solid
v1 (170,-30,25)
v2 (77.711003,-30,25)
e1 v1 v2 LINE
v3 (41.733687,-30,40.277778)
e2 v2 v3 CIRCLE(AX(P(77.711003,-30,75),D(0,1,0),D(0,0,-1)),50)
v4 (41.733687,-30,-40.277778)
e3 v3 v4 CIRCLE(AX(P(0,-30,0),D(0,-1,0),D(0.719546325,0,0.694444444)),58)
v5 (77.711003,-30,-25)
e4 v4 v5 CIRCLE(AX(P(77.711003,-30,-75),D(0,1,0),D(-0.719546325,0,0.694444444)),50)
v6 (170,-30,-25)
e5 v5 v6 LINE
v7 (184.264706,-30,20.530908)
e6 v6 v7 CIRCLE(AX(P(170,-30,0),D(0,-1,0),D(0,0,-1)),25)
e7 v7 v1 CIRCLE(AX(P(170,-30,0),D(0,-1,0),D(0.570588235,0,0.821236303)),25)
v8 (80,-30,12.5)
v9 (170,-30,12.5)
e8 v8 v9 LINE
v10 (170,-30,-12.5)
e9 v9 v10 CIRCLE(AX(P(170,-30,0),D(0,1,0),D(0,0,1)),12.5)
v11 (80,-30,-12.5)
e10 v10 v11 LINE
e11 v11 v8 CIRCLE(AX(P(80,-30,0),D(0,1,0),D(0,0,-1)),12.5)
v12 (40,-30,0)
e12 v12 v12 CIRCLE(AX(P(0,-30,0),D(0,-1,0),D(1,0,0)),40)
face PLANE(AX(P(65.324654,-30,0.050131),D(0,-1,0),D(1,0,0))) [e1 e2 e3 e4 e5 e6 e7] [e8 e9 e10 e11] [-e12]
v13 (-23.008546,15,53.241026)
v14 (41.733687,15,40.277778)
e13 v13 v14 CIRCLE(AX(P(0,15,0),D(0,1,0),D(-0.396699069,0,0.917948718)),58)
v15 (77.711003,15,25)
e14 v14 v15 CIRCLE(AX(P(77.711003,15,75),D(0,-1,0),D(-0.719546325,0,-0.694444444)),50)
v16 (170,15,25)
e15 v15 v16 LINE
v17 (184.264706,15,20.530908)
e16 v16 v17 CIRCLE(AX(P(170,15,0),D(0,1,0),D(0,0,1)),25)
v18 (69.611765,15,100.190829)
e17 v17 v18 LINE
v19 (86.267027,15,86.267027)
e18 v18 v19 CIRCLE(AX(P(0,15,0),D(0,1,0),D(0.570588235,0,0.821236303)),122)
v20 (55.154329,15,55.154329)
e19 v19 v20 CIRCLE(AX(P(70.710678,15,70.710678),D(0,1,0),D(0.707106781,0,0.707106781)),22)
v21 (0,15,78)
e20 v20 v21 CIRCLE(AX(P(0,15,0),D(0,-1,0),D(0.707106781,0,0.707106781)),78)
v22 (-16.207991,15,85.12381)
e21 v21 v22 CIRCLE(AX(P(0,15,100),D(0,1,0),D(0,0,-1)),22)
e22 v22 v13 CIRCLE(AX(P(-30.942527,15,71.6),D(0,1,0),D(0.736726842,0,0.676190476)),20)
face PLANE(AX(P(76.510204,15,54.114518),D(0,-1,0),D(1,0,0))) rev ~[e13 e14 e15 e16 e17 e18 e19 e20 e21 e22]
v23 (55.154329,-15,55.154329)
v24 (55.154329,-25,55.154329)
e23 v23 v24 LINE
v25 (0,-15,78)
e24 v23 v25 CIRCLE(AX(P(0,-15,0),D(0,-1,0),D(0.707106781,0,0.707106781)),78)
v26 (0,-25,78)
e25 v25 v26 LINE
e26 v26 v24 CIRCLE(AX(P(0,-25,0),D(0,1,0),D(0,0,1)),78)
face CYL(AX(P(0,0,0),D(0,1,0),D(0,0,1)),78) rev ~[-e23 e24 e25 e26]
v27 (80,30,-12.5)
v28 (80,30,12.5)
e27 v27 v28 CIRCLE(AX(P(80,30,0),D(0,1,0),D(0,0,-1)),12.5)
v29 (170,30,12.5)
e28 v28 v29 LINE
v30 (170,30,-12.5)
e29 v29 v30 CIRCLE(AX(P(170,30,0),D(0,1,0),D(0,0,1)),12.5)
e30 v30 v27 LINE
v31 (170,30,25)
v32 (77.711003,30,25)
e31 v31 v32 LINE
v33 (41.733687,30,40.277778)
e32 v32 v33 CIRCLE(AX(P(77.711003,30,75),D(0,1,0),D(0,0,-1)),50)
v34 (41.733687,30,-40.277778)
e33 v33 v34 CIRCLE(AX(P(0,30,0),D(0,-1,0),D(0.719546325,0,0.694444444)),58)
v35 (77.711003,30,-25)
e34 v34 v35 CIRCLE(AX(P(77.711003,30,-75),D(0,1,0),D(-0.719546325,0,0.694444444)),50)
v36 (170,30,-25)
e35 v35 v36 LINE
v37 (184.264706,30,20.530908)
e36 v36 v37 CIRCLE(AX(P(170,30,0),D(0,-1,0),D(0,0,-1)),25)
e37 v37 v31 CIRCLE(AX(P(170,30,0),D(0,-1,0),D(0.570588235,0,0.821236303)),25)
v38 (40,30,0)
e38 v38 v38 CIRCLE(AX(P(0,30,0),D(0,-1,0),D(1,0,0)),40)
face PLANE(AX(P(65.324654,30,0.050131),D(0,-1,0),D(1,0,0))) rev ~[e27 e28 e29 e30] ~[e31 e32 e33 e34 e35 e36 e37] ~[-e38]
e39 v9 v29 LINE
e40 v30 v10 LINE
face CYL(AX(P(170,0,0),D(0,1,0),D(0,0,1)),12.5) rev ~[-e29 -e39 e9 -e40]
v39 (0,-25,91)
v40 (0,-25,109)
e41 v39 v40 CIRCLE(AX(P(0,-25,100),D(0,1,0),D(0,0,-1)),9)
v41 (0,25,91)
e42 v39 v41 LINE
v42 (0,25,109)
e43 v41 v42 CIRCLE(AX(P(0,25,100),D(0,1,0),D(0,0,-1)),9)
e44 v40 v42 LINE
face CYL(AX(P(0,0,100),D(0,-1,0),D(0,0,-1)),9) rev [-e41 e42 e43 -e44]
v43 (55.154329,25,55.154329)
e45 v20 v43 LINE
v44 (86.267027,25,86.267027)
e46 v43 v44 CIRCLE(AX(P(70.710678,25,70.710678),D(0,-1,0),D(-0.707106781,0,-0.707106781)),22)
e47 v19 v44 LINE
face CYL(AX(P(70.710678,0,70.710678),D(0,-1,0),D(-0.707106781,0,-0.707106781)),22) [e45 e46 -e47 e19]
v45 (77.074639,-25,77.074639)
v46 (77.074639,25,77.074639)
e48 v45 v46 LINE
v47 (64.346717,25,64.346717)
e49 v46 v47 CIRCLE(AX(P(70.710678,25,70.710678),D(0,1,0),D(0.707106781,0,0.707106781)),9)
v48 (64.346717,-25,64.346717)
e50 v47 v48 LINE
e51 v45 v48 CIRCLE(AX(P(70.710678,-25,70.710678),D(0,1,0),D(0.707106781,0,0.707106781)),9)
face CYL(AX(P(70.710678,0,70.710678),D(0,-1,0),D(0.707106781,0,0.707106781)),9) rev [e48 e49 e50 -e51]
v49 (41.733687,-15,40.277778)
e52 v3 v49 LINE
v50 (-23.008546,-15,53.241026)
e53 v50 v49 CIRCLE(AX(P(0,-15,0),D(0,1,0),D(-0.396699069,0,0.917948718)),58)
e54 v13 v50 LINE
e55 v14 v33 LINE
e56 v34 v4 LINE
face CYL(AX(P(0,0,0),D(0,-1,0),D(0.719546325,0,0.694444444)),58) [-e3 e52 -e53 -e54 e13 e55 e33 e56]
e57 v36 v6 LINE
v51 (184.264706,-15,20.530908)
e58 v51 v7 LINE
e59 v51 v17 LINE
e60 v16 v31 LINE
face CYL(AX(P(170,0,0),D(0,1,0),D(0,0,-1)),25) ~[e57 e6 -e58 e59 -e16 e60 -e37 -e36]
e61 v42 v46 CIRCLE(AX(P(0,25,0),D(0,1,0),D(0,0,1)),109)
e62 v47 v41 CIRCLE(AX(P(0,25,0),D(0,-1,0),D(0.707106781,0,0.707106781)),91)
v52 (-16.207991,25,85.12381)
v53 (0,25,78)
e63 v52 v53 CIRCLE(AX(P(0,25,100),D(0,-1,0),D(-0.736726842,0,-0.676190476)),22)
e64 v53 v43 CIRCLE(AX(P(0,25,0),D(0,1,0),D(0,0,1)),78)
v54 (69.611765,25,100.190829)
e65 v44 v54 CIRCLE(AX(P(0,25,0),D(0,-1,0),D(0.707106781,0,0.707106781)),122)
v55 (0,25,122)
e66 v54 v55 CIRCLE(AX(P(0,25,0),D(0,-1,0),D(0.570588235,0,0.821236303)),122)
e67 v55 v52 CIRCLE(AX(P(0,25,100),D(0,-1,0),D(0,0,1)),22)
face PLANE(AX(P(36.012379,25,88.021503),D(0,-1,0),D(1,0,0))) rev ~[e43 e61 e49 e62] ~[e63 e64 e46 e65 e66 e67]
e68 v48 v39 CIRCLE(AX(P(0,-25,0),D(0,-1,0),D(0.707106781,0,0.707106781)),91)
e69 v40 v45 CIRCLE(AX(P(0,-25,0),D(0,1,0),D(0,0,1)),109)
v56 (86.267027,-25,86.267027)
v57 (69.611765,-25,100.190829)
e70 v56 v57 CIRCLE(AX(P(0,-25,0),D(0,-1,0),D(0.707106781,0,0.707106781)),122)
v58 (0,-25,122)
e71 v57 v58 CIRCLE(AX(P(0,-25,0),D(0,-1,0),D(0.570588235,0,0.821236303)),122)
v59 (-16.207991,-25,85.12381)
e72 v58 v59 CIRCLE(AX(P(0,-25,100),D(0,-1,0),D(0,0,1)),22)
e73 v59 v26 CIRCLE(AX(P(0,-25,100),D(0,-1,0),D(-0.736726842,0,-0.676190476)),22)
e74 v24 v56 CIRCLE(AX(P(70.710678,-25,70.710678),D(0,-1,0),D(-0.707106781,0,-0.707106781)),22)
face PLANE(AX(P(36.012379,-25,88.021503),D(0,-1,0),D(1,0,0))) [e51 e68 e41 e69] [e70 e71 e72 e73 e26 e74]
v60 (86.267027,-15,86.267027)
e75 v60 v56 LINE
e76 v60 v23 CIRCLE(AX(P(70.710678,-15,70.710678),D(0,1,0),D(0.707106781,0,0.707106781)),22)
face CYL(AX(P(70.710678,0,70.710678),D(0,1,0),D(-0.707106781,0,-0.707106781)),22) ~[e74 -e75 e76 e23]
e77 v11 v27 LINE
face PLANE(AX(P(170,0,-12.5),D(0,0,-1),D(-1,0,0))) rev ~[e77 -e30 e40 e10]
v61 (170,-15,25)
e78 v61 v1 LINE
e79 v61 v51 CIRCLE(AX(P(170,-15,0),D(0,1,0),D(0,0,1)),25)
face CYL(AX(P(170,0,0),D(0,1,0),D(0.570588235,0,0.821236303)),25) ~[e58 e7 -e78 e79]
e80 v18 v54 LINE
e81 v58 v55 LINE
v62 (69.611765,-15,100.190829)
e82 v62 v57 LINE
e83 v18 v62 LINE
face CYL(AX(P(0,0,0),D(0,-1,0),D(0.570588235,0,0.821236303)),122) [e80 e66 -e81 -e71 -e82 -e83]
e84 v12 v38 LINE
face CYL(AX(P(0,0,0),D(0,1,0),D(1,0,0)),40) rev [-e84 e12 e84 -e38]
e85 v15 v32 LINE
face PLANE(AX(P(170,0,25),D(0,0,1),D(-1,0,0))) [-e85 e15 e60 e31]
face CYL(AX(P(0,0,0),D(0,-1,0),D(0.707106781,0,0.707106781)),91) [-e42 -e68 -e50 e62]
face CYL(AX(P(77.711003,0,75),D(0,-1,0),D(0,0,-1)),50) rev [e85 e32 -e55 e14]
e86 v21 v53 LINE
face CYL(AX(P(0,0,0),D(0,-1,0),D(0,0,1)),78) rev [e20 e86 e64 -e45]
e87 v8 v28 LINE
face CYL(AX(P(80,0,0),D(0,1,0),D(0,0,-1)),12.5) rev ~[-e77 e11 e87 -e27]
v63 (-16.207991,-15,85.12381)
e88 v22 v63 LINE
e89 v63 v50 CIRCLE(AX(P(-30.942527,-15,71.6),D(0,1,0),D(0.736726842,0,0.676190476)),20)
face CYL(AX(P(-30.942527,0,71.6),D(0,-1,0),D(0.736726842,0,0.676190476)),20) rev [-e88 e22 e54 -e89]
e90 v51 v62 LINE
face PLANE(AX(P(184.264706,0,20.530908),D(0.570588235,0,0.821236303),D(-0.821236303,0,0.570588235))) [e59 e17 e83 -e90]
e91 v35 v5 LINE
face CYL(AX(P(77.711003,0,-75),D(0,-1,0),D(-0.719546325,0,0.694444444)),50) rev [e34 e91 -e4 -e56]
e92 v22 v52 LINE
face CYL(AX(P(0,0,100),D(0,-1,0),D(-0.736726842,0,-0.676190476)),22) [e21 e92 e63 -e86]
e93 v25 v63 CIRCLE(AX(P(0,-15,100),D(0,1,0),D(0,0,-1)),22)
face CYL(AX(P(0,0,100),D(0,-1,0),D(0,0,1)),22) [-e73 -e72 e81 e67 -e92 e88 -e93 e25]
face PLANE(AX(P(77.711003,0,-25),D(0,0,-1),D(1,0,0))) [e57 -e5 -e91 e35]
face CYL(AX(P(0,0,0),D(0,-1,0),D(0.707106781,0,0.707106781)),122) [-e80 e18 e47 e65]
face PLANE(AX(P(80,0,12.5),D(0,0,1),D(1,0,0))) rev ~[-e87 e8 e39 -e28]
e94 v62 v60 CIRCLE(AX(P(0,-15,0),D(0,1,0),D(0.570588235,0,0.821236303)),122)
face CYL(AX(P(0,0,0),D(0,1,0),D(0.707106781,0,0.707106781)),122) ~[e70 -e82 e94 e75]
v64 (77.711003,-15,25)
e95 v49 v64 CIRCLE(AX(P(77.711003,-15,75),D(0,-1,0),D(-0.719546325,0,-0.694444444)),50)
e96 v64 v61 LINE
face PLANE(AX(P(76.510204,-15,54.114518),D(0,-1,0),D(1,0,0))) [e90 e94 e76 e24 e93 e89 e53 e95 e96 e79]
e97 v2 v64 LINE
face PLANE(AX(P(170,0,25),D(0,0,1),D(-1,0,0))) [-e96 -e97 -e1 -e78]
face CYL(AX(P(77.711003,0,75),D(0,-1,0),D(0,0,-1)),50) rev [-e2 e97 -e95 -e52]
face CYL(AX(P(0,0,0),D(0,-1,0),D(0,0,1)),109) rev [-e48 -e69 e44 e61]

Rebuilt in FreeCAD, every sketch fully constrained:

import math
import FreeCAD as App
import Part
import Sketcher

doc = App.newDocument("Part")
body = doc.addObject("PartDesign::Body", "Body")

# Sketch on XZ plane
sketch1 = body.newObject("Sketcher::SketchObject", "Sketch")
sketch1.AttachmentSupport = (doc.getObject("XZ_Plane"), [""])
sketch1.MapMode = "FlatFace"
sketch1.addGeometry([
    Part.ArcOfCircle(Part.Circle(App.Vector(0, 0, 0), App.Vector(0, 0, 1), 78), math.radians(45), math.radians(90)),  # 0
    Part.ArcOfCircle(Part.Circle(App.Vector(0, 100, 0), App.Vector(0, 0, 1), 22), math.radians(-137.453334), math.radians(-90)),  # 1
    Part.ArcOfCircle(Part.Circle(App.Vector(-30.942527, 71.6, 0), App.Vector(0, 0, 1), 20), math.radians(-66.628017), math.radians(42.546666)),  # 2
    Part.ArcOfCircle(Part.Circle(App.Vector(0, 0, 0), App.Vector(0, 0, 1), 58), math.radians(43.982963), math.radians(113.371983)),  # 3
    Part.ArcOfCircle(Part.Circle(App.Vector(77.711003, 75, 0), App.Vector(0, 0, 1), 50), math.radians(-136.017037), math.radians(-90)),  # 4
    Part.LineSegment(App.Vector(77.711003, 25, 0), App.Vector(170, 25, 0)),  # 5
    Part.ArcOfCircle(Part.Circle(App.Vector(170, 0, 0), App.Vector(0, 0, 1), 25), math.radians(55.208745), math.radians(90)),  # 6
    Part.LineSegment(App.Vector(184.264706, 20.530908, 0), App.Vector(69.611765, 100.190829, 0)),  # 7
    Part.ArcOfCircle(Part.Circle(App.Vector(0, 0, 0), App.Vector(0, 0, 1), 122), math.radians(45), math.radians(55.208745)),  # 8
    Part.ArcOfCircle(Part.Circle(App.Vector(70.710678, 70.710678, 0), App.Vector(0, 0, 1), 22), math.radians(-135), math.radians(45)),  # 9
], False)
sketch1.addConstraint([
    Sketcher.Constraint("Tangent", 0, 2, 1, 2),
    Sketcher.Constraint("Tangent", 1, 1, 2, 2),
    Sketcher.Constraint("Tangent", 2, 1, 3, 2),
    Sketcher.Constraint("Tangent", 3, 1, 4, 1),
    Sketcher.Constraint("Tangent", 4, 2, 5, 1),
    Sketcher.Constraint("Tangent", 5, 2, 6, 2),
    Sketcher.Constraint("Tangent", 6, 1, 7, 1),
    Sketcher.Constraint("Tangent", 7, 2, 8, 2),
    Sketcher.Constraint("Tangent", 8, 1, 9, 2),
    Sketcher.Constraint("Tangent", 9, 1, 0, 1),
    Sketcher.Constraint("Horizontal", 5),
    Sketcher.Constraint("Coincident", 0, 3, -1, 1),
    Sketcher.Constraint("Coincident", 3, 3, -1, 1),
    Sketcher.Constraint("Coincident", 8, 3, -1, 1),
    Sketcher.Constraint("Equal", 1, 9),
    Sketcher.Constraint("PointOnObject", 1, 3, -2),
    Sketcher.Constraint("PointOnObject", 6, 3, -1),
    Sketcher.Constraint("Radius", 0, 78.0),
    Sketcher.Constraint("Radius", 1, 22.0),
    Sketcher.Constraint("Radius", 2, 20.0),
    Sketcher.Constraint("Radius", 3, 58.0),
    Sketcher.Constraint("Radius", 4, 50.0),
    Sketcher.Constraint("Radius", 6, 25.0),
    Sketcher.Constraint("DistanceX", -1, 1, 6, 3, 170.0),
    Sketcher.Constraint("DistanceY", 3, 1, 9, 3, 30.4329),
])
pad1 = body.newObject("PartDesign::Pad", "Pad")
pad1.Profile = sketch1
pad1.Length = 30
pad1.Midplane = True

# Sketch on XZ plane
sketch2 = body.newObject("Sketcher::SketchObject", "Sketch001")
sketch2.AttachmentSupport = (doc.getObject("XZ_Plane"), [""])
sketch2.MapMode = "FlatFace"
sketch2.addGeometry([
    Part.ArcOfCircle(Part.Circle(App.Vector(0, 0, 0), App.Vector(0, 0, 1), 58), math.radians(43.982963), math.radians(316.017037)),  # 0
    Part.ArcOfCircle(Part.Circle(App.Vector(77.711003, -75, 0), App.Vector(0, 0, 1), 50), math.radians(90), math.radians(136.017037)),  # 1
    Part.LineSegment(App.Vector(77.711003, -25, 0), App.Vector(170, -25, 0)),  # 2
    Part.ArcOfCircle(Part.Circle(App.Vector(170, 0, 0), App.Vector(0, 0, 1), 25), math.radians(-90), math.radians(55.208745)),  # 3
    Part.ArcOfCircle(Part.Circle(App.Vector(170, 0, 0), App.Vector(0, 0, 1), 25), math.radians(55.208745), math.radians(90)),  # 4
    Part.LineSegment(App.Vector(170, 25, 0), App.Vector(77.711003, 25, 0)),  # 5
    Part.ArcOfCircle(Part.Circle(App.Vector(77.711003, 75, 0), App.Vector(0, 0, 1), 50), math.radians(-136.017037), math.radians(-90)),  # 6
    Part.Circle(App.Vector(0, 0, 0), App.Vector(0, 0, 1), 40),  # 7
    Part.ArcOfCircle(Part.Circle(App.Vector(170, 0, 0), App.Vector(0, 0, 1), 12.5), math.radians(-90), math.radians(90)),  # 8
    Part.LineSegment(App.Vector(170, -12.5, 0), App.Vector(80, -12.5, 0)),  # 9
    Part.ArcOfCircle(Part.Circle(App.Vector(80, 0, 0), App.Vector(0, 0, 1), 12.5), math.radians(90), math.radians(270)),  # 10
    Part.LineSegment(App.Vector(80, 12.5, 0), App.Vector(170, 12.5, 0)),  # 11
], False)
sketch2.addConstraint([
    Sketcher.Constraint("Tangent", 0, 2, 1, 2),
    Sketcher.Constraint("Tangent", 1, 1, 2, 1),
    Sketcher.Constraint("Tangent", 2, 2, 3, 1),
    Sketcher.Constraint("Tangent", 3, 2, 4, 1),
    Sketcher.Constraint("Tangent", 4, 2, 5, 1),
    Sketcher.Constraint("Tangent", 5, 2, 6, 2),
    Sketcher.Constraint("Tangent", 6, 1, 0, 1),
    Sketcher.Constraint("Tangent", 8, 1, 9, 1),
    Sketcher.Constraint("Tangent", 9, 2, 10, 2),
    Sketcher.Constraint("Tangent", 10, 1, 11, 1),
    Sketcher.Constraint("Tangent", 11, 2, 8, 2),
    Sketcher.Constraint("Horizontal", 2),
    Sketcher.Constraint("Horizontal", 5),
    Sketcher.Constraint("Horizontal", 9),
    Sketcher.Constraint("Horizontal", 11),
    Sketcher.Constraint("Coincident", 0, 3, -1, 1),
    Sketcher.Constraint("Coincident", 7, 3, -1, 1),
    Sketcher.Constraint("Coincident", 8, 3, 3, 3),
    Sketcher.Constraint("Equal", 3, 4),
    Sketcher.Constraint("Equal", 1, 6),
    Sketcher.Constraint("PointOnObject", 3, 3, -1),
    Sketcher.Constraint("Diameter", 7, 80.0),
    Sketcher.Constraint("Radius", 0, 58.0),
    Sketcher.Constraint("Radius", 1, 50.0),
    Sketcher.Constraint("Radius", 3, 25.0),
    Sketcher.Constraint("Radius", 8, 12.5),
    Sketcher.Constraint("DistanceX", 9, 2, 9, 1, 90.0),
    Sketcher.Constraint("DistanceX", -1, 1, 3, 3, 170.0),
    Sketcher.Constraint("DistanceX", -1, 1, 3, 2, 184.264706),
])
pad2 = body.newObject("PartDesign::Pad", "Pad001")
pad2.Profile = sketch2
pad2.Length = 60
pad2.Midplane = True

# Sketch on XZ plane
sketch3 = body.newObject("Sketcher::SketchObject", "Sketch002")
sketch3.AttachmentSupport = (doc.getObject("XZ_Plane"), [""])
sketch3.MapMode = "FlatFace"
sketch3.addGeometry([
    Part.ArcOfCircle(Part.Circle(App.Vector(0, 100, 0), App.Vector(0, 0, 1), 22), math.radians(-137.453334), math.radians(-90)),  # 0
    Part.ArcOfCircle(Part.Circle(App.Vector(0, 0, 0), App.Vector(0, 0, 1), 78), math.radians(45), math.radians(90)),  # 1
    Part.ArcOfCircle(Part.Circle(App.Vector(70.710678, 70.710678, 0), App.Vector(0, 0, 1), 22), math.radians(-135), math.radians(45)),  # 2
    Part.ArcOfCircle(Part.Circle(App.Vector(0, 0, 0), App.Vector(0, 0, 1), 122), math.radians(45), math.radians(55.208745)),  # 3
    Part.ArcOfCircle(Part.Circle(App.Vector(0, 0, 0), App.Vector(0, 0, 1), 122), math.radians(55.208745), math.radians(90)),  # 4
    Part.ArcOfCircle(Part.Circle(App.Vector(0, 100, 0), App.Vector(0, 0, 1), 22), math.radians(90), math.radians(222.546666)),  # 5
    Part.ArcOfCircle(Part.Circle(App.Vector(70.710678, 70.710678, 0), App.Vector(0, 0, 1), 9), math.radians(-135), math.radians(45)),  # 6
    Part.ArcOfCircle(Part.Circle(App.Vector(0, 0, 0), App.Vector(0, 0, 1), 91), math.radians(45), math.radians(90)),  # 7
    Part.ArcOfCircle(Part.Circle(App.Vector(0, 100, 0), App.Vector(0, 0, 1), 9), math.radians(90), math.radians(270)),  # 8
    Part.ArcOfCircle(Part.Circle(App.Vector(0, 0, 0), App.Vector(0, 0, 1), 109), math.radians(45), math.radians(90)),  # 9
], False)
sketch3.addConstraint([
    Sketcher.Constraint("Tangent", 0, 2, 1, 2),
    Sketcher.Constraint("Tangent", 1, 1, 2, 1),
    Sketcher.Constraint("Tangent", 2, 2, 3, 1),
    Sketcher.Constraint("Tangent", 3, 2, 4, 1),
    Sketcher.Constraint("Tangent", 4, 2, 5, 1),
    Sketcher.Constraint("Tangent", 5, 2, 0, 1),
    Sketcher.Constraint("Tangent", 6, 1, 7, 1),
    Sketcher.Constraint("Tangent", 7, 2, 8, 2),
    Sketcher.Constraint("Tangent", 8, 1, 9, 2),
    Sketcher.Constraint("Tangent", 9, 1, 6, 2),
    Sketcher.Constraint("Coincident", 1, 3, -1, 1),
    Sketcher.Constraint("Coincident", 3, 3, -1, 1),
    Sketcher.Constraint("Coincident", 7, 3, -1, 1),
    Sketcher.Constraint("Coincident", 9, 3, -1, 1),
    Sketcher.Constraint("Coincident", 6, 3, 2, 3),
    Sketcher.Constraint("Coincident", 8, 3, 0, 3),
    Sketcher.Constraint("Equal", 3, 4),
    Sketcher.Constraint("PointOnObject", 0, 3, -2),
    Sketcher.Constraint("Radius", 0, 22.0),
    Sketcher.Constraint("Radius", 1, 78.0),
    Sketcher.Constraint("Radius", 6, 9.0),
    Sketcher.Constraint("DistanceX", 1, 1, 2, 2, 31.112698),
    Sketcher.Constraint("DistanceY", 2, 2, 3, 2, 13.923802),
    Sketcher.Constraint("DistanceX", 5, 2, -1, 1, 16.207991),
])
pad3 = body.newObject("PartDesign::Pad", "Pad002")
pad3.Profile = sketch3
pad3.Length = 50
pad3.Midplane = True

# Sketch on XZ plane
sketch4 = body.newObject("Sketcher::SketchObject", "Sketch003")
sketch4.AttachmentSupport = (doc.getObject("XZ_Plane"), [""])
sketch4.MapMode = "FlatFace"
sketch4.addGeometry([
    Part.ArcOfCircle(Part.Circle(App.Vector(0, 100, 0), App.Vector(0, 0, 1), 22), math.radians(-137.453334), math.radians(-90)),  # 0
    Part.ArcOfCircle(Part.Circle(App.Vector(0, 0, 0), App.Vector(0, 0, 1), 78), math.radians(45), math.radians(90)),  # 1
    Part.ArcOfCircle(Part.Circle(App.Vector(70.710678, 70.710678, 0), App.Vector(0, 0, 1), 22), math.radians(-135), math.radians(45)),  # 2
    Part.ArcOfCircle(Part.Circle(App.Vector(0, 0, 0), App.Vector(0, 0, 1), 122), math.radians(45), math.radians(55.208745)),  # 3
    Part.ArcOfCircle(Part.Circle(App.Vector(0, 0, 0), App.Vector(0, 0, 1), 122), math.radians(55.208745), math.radians(90)),  # 4
    Part.ArcOfCircle(Part.Circle(App.Vector(0, 100, 0), App.Vector(0, 0, 1), 22), math.radians(90), math.radians(222.546666)),  # 5
    Part.ArcOfCircle(Part.Circle(App.Vector(70.710678, 70.710678, 0), App.Vector(0, 0, 1), 9), math.radians(-135), math.radians(45)),  # 6
    Part.ArcOfCircle(Part.Circle(App.Vector(0, 0, 0), App.Vector(0, 0, 1), 91), math.radians(45), math.radians(90)),  # 7
    Part.ArcOfCircle(Part.Circle(App.Vector(0, 100, 0), App.Vector(0, 0, 1), 9), math.radians(90), math.radians(270)),  # 8
    Part.ArcOfCircle(Part.Circle(App.Vector(0, 0, 0), App.Vector(0, 0, 1), 109), math.radians(45), math.radians(90)),  # 9
], False)
sketch4.addConstraint([
    Sketcher.Constraint("Tangent", 0, 2, 1, 2),
    Sketcher.Constraint("Tangent", 1, 1, 2, 1),
    Sketcher.Constraint("Tangent", 2, 2, 3, 1),
    Sketcher.Constraint("Tangent", 3, 2, 4, 1),
    Sketcher.Constraint("Tangent", 4, 2, 5, 1),
    Sketcher.Constraint("Tangent", 5, 2, 0, 1),
    Sketcher.Constraint("Tangent", 6, 1, 7, 1),
    Sketcher.Constraint("Tangent", 7, 2, 8, 2),
    Sketcher.Constraint("Tangent", 8, 1, 9, 2),
    Sketcher.Constraint("Tangent", 9, 1, 6, 2),
    Sketcher.Constraint("Coincident", 1, 3, -1, 1),
    Sketcher.Constraint("Coincident", 3, 3, -1, 1),
    Sketcher.Constraint("Coincident", 7, 3, -1, 1),
    Sketcher.Constraint("Coincident", 9, 3, -1, 1),
    Sketcher.Constraint("Coincident", 6, 3, 2, 3),
    Sketcher.Constraint("Coincident", 8, 3, 0, 3),
    Sketcher.Constraint("Equal", 3, 4),
    Sketcher.Constraint("PointOnObject", 0, 3, -2),
    Sketcher.Constraint("Radius", 0, 22.0),
    Sketcher.Constraint("Radius", 1, 78.0),
    Sketcher.Constraint("Radius", 6, 9.0),
    Sketcher.Constraint("DistanceX", 1, 1, 2, 2, 31.112698),
    Sketcher.Constraint("DistanceY", 2, 2, 3, 2, 13.923802),
    Sketcher.Constraint("DistanceX", 5, 2, -1, 1, 16.207991),
])
pad4 = body.newObject("PartDesign::Pad", "Pad003")
pad4.Profile = sketch4
pad4.Length = 50
pad4.Midplane = True

doc.recompute()
